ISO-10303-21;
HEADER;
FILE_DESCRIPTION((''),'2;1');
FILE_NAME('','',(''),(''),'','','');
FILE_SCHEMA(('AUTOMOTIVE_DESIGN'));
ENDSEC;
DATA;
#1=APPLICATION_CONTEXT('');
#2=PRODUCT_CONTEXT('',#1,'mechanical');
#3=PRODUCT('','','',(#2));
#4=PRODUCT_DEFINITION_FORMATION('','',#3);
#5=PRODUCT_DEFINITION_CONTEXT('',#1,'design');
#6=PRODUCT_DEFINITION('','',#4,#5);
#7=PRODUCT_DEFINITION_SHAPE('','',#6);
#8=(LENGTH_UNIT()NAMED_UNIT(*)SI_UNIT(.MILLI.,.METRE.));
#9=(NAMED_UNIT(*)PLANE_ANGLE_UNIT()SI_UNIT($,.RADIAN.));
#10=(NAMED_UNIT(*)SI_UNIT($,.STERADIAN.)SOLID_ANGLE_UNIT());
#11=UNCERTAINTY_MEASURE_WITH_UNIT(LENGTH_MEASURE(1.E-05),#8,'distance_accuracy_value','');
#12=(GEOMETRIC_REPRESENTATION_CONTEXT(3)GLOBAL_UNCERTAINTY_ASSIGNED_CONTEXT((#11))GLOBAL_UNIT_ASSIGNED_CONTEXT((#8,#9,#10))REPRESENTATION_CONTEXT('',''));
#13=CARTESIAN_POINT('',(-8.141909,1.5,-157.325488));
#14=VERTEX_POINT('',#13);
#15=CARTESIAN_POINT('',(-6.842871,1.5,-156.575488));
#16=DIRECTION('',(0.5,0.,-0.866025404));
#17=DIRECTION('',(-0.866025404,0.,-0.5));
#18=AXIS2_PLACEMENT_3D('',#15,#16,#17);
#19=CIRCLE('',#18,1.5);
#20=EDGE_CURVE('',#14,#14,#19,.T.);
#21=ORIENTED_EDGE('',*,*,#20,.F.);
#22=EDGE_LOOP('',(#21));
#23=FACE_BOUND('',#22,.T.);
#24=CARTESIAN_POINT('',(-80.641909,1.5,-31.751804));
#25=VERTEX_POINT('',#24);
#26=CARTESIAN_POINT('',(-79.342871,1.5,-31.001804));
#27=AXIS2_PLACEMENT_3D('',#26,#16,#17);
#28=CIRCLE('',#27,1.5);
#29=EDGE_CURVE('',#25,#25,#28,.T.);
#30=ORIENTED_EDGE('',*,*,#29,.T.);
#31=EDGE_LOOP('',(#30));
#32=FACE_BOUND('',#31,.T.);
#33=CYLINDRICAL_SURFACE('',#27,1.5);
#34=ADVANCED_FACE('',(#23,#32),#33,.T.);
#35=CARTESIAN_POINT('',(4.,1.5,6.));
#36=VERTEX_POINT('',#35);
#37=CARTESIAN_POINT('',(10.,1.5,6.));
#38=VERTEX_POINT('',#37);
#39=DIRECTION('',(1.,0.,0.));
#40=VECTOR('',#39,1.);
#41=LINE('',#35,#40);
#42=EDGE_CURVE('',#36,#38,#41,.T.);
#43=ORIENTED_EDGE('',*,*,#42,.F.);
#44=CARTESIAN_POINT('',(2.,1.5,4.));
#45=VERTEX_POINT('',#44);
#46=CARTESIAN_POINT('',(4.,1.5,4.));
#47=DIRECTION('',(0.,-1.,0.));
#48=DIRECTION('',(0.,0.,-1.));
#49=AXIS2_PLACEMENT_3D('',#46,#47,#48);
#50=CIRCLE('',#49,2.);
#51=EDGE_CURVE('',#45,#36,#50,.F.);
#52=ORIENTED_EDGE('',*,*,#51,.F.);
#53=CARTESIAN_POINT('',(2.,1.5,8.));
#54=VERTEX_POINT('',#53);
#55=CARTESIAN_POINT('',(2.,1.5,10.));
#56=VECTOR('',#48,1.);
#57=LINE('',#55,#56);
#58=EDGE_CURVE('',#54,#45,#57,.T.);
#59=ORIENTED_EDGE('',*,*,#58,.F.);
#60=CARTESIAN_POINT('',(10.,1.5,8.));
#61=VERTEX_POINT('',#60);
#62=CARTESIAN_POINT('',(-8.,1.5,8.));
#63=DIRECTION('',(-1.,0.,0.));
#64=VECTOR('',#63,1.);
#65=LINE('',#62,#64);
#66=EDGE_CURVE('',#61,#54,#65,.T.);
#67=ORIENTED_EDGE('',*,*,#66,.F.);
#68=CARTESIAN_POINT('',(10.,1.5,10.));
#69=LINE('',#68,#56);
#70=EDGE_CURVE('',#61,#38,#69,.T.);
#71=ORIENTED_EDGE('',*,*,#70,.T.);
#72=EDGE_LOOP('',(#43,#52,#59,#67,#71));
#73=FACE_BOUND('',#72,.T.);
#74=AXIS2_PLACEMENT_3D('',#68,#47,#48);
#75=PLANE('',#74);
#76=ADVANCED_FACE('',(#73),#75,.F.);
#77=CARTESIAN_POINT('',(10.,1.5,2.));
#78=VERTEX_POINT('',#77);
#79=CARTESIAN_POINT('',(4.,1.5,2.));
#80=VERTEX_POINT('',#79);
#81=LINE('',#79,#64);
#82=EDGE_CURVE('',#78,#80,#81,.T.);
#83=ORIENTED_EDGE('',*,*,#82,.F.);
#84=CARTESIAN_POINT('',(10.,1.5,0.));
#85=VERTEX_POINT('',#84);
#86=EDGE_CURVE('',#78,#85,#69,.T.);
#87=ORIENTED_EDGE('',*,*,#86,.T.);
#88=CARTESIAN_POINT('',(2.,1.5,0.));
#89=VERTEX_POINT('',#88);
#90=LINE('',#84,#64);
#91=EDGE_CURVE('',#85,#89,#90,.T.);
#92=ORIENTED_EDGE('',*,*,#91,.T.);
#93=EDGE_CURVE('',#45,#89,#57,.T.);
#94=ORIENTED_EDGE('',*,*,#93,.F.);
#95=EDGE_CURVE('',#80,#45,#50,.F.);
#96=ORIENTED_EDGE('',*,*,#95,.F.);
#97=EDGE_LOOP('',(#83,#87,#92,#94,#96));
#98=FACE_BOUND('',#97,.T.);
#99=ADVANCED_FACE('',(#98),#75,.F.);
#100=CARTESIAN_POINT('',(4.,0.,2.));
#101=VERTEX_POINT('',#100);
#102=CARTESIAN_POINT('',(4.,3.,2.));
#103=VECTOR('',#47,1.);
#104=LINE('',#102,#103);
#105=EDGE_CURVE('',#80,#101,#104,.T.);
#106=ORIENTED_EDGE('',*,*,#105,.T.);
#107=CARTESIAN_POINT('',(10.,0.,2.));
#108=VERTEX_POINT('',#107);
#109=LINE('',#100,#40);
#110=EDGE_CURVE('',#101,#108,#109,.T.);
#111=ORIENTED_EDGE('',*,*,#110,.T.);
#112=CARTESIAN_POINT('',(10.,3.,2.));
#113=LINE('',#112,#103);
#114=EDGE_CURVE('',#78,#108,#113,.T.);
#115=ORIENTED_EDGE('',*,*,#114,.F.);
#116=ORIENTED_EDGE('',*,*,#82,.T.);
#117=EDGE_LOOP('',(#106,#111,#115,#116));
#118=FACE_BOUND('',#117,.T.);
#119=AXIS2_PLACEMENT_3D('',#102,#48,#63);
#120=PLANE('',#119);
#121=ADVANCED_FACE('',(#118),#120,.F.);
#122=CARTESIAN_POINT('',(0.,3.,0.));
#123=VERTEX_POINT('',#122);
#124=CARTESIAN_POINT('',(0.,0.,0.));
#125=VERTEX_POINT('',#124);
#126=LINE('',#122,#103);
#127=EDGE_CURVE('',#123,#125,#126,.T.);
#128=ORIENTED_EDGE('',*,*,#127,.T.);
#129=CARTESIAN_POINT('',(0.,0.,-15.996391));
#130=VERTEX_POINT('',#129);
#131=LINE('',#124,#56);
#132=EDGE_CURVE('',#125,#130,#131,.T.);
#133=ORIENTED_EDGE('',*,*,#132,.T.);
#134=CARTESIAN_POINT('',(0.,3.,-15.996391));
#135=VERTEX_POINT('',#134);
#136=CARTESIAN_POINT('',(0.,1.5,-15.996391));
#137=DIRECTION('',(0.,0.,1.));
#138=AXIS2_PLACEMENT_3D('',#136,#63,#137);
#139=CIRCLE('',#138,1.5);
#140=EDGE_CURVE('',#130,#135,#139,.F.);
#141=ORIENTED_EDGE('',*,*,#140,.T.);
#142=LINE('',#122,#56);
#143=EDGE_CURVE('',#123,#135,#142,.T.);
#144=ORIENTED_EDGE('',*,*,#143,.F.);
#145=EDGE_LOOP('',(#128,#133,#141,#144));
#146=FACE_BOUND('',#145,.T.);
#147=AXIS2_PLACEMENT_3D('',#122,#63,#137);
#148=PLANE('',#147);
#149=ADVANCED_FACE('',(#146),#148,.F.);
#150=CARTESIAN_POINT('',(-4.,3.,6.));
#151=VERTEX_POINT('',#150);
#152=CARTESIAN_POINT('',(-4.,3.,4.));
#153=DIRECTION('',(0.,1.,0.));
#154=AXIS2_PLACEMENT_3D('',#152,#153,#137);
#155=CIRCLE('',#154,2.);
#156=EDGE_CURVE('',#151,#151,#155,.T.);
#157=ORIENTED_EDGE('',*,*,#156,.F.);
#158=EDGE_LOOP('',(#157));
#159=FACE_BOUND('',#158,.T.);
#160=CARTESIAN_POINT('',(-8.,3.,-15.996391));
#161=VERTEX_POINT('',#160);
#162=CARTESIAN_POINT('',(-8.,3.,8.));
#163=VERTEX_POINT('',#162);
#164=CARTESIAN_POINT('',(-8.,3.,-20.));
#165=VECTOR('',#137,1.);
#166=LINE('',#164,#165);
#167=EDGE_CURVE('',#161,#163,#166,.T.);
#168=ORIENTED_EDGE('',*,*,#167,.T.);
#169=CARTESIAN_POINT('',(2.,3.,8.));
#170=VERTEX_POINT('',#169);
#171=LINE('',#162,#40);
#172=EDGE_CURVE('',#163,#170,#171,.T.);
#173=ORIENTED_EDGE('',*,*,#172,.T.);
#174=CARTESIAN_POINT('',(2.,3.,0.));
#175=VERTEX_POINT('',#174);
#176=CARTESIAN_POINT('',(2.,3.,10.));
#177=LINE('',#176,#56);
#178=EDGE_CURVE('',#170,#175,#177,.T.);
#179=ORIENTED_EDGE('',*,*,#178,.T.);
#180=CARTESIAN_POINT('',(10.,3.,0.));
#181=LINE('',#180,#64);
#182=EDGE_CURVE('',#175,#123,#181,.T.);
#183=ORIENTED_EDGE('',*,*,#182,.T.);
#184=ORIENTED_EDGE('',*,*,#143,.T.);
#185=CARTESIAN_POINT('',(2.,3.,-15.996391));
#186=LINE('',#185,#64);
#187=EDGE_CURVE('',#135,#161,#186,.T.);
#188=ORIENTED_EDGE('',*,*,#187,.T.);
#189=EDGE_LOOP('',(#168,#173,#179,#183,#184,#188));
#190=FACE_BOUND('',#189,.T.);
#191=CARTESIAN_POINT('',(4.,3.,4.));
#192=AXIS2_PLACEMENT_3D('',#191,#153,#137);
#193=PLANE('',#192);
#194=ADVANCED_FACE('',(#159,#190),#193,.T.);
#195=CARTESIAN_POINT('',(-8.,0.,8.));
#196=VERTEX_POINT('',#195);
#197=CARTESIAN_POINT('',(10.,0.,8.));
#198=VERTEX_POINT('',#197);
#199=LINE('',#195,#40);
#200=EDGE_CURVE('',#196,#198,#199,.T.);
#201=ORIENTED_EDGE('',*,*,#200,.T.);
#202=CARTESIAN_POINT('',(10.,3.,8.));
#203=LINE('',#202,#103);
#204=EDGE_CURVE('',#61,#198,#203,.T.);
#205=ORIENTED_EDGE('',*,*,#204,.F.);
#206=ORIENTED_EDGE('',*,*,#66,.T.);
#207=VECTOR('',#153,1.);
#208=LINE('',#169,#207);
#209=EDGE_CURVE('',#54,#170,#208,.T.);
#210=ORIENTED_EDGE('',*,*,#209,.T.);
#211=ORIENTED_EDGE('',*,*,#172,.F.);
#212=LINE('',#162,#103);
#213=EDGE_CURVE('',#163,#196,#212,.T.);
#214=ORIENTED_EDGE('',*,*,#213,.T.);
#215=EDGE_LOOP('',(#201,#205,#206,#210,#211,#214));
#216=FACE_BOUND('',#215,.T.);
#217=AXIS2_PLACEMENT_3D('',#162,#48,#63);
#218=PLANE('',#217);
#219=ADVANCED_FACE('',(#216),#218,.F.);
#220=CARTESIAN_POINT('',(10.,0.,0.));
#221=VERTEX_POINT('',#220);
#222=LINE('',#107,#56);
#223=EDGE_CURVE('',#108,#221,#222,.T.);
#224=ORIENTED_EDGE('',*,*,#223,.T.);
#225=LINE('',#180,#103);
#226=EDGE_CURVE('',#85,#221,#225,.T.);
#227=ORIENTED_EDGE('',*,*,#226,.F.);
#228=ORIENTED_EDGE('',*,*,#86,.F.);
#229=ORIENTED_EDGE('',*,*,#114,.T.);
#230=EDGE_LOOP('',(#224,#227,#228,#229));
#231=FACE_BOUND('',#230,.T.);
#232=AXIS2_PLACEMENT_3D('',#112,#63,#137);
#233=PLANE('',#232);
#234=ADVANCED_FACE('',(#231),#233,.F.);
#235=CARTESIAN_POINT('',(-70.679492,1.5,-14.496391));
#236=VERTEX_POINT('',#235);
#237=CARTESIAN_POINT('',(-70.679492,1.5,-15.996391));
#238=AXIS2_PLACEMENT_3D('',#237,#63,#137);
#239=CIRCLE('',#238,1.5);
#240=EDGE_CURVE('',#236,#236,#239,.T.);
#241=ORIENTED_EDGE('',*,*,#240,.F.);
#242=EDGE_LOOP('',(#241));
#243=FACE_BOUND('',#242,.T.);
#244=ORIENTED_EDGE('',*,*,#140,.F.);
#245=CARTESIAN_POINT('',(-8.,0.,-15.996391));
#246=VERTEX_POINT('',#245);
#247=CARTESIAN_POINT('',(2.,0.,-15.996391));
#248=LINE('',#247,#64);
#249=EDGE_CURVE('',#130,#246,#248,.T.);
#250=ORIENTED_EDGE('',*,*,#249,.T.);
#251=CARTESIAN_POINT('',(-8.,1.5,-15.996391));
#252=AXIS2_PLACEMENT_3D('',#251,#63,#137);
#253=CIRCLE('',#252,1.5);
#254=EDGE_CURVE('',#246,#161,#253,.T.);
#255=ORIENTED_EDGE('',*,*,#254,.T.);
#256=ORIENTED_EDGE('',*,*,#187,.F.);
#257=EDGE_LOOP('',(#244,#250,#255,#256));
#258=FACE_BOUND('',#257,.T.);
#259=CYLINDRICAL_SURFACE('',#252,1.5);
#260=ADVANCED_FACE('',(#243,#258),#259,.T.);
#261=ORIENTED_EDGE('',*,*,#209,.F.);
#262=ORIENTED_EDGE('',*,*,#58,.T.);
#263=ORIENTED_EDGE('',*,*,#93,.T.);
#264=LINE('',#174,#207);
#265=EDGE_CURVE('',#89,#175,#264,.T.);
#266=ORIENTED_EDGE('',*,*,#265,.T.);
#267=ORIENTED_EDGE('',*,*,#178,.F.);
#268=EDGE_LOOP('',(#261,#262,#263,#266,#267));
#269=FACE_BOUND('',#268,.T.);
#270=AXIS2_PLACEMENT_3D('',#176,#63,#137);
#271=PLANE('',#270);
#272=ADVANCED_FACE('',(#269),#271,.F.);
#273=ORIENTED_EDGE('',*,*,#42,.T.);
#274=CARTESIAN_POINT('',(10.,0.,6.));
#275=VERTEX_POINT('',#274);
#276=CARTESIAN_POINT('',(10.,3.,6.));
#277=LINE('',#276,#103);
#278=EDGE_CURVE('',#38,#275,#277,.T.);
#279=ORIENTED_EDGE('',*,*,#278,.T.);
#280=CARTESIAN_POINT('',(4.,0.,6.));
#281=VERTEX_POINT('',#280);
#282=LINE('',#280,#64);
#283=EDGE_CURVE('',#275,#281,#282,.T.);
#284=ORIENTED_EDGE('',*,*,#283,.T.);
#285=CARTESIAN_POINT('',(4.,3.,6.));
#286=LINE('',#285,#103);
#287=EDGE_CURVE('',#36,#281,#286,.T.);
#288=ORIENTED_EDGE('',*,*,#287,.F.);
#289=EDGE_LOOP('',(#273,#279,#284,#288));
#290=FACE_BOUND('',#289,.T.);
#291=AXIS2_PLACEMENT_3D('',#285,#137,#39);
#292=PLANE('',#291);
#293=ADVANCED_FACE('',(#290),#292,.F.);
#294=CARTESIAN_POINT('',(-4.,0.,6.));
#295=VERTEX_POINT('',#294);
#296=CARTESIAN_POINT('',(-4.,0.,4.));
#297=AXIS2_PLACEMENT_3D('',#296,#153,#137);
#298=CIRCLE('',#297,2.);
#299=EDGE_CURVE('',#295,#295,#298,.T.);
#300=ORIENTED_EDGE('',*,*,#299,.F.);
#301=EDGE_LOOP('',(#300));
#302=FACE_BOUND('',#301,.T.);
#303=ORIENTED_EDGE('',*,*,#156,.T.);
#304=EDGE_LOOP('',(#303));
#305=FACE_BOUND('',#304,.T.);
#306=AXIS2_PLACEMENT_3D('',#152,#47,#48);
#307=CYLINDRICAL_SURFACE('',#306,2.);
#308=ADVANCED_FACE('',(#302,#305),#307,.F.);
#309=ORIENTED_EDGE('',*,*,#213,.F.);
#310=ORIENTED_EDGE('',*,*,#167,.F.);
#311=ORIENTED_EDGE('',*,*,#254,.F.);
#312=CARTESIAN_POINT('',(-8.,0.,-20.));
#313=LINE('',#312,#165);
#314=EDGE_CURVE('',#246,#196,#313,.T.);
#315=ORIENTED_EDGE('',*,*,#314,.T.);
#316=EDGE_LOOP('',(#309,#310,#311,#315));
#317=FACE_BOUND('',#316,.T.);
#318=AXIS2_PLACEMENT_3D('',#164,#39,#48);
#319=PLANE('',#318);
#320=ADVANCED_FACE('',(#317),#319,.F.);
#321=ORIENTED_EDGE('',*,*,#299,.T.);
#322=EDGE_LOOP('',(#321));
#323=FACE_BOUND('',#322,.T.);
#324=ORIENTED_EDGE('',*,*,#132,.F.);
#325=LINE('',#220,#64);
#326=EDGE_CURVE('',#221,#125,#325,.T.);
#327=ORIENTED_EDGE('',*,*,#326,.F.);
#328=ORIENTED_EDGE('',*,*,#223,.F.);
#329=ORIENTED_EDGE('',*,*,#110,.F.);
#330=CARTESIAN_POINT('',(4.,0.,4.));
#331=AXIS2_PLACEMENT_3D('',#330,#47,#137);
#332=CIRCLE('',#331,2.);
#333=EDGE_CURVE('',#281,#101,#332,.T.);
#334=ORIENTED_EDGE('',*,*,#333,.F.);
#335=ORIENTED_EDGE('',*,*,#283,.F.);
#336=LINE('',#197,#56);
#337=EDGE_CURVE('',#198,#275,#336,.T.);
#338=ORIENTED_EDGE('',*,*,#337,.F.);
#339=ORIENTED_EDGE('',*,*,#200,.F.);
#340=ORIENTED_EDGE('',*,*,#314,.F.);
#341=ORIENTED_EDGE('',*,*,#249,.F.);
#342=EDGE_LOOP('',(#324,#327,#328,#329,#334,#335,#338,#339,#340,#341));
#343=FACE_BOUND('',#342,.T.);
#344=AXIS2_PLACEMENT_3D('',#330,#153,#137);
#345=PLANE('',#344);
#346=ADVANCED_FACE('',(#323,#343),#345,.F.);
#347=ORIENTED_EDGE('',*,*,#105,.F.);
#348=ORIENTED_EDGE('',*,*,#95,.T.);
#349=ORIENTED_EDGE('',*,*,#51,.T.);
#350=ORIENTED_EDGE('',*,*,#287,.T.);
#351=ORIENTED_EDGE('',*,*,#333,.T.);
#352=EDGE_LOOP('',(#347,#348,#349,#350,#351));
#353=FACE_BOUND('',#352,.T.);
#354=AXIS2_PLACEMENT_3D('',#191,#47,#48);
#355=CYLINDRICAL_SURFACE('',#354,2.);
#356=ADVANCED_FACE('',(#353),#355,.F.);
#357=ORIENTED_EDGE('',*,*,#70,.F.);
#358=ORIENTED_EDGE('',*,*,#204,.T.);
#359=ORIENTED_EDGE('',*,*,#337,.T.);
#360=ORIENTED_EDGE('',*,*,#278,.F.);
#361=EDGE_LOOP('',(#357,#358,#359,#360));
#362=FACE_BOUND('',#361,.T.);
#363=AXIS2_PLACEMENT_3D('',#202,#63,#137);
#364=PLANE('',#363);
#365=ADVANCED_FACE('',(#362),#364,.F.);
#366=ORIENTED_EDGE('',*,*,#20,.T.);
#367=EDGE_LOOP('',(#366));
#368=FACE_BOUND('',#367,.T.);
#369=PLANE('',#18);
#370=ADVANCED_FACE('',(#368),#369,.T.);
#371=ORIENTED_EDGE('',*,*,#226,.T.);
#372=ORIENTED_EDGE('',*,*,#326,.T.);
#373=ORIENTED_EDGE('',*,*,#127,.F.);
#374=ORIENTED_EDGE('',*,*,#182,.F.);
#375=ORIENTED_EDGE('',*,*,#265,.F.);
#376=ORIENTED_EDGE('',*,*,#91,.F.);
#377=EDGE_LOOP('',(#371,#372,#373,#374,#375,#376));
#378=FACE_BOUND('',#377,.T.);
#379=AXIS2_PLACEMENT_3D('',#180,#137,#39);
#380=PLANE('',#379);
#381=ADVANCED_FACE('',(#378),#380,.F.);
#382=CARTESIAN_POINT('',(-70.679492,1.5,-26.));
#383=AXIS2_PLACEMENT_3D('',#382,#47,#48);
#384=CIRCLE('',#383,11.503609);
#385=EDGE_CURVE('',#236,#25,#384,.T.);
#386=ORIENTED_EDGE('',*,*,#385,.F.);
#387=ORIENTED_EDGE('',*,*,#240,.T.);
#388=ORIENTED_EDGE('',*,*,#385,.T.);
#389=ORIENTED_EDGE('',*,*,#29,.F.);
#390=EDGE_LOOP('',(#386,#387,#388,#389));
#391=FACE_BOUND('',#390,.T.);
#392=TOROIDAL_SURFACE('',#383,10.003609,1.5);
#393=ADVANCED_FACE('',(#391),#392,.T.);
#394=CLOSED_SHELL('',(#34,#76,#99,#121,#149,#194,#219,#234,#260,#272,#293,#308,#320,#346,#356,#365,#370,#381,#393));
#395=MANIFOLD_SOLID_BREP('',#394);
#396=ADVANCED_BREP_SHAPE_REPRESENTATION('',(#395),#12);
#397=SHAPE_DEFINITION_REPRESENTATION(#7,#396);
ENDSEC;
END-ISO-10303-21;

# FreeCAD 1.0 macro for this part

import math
import FreeCAD as App
import Part
import Sketcher

V = App.Vector
Q = App.Units.Quantity

doc = App.newDocument("Part")
body = doc.addObject("PartDesign::Body", "Body")

# Sketch on XZ plane
sketch1 = body.newObject("Sketcher::SketchObject", "Sketch")
sketch1.AttachmentSupport = (doc.getObject("XZ_Plane"), [""])
sketch1.MapMode = "FlatFace"
sketch1.addGeometry([
    Part.LineSegment(V(0, 0, 0), V(0, -20, 0)),  # 0
    Part.LineSegment(V(0, -20, 0), V(-8, -20, 0)),  # 1
    Part.LineSegment(V(-8, -20, 0), V(-8, 8, 0)),  # 2
    Part.LineSegment(V(-8, 8, 0), V(10, 8, 0)),  # 3
    Part.LineSegment(V(10, 8, 0), V(10, 6, 0)),  # 4
    Part.LineSegment(V(10, 6, 0), V(4, 6, 0)),  # 5
    Part.ArcOfCircle(Part.Circle(V(4, 4, 0), V(0, 0, 1), 2), math.radians(90), math.radians(270)),  # 6
    Part.LineSegment(V(4, 2, 0), V(10, 2, 0)),  # 7
    Part.LineSegment(V(10, 2, 0), V(10, 0, 0)),  # 8
    Part.LineSegment(V(10, 0, 0), V(0, 0, 0)),  # 9
    Part.Circle(V(-4, 4, 0), V(0, 0, 1), 2),  # 10
], False)
sketch1.addConstraint([
    Sketcher.Constraint("Coincident", 0, 2, 1, 1),
    Sketcher.Constraint("Coincident", 1, 2, 2, 1),
    Sketcher.Constraint("Coincident", 2, 2, 3, 1),
    Sketcher.Constraint("Coincident", 3, 2, 4, 1),
    Sketcher.Constraint("Coincident", 4, 2, 5, 1),
    Sketcher.Constraint("Tangent", 5, 2, 6, 1),
    Sketcher.Constraint("Tangent", 6, 2, 7, 1),
    Sketcher.Constraint("Coincident", 7, 2, 8, 1),
    Sketcher.Constraint("Coincident", 8, 2, 9, 1),
    Sketcher.Constraint("Coincident", 9, 2, 0, 1),
    Sketcher.Constraint("Vertical", 0),
    Sketcher.Constraint("Horizontal", 1),
    Sketcher.Constraint("Vertical", 2),
    Sketcher.Constraint("Horizontal", 3),
    Sketcher.Constraint("Vertical", 4),
    Sketcher.Constraint("Horizontal", 5),
    Sketcher.Constraint("Horizontal", 7),
    Sketcher.Constraint("Vertical", 8),
    Sketcher.Constraint("Horizontal", 9),
    Sketcher.Constraint("Coincident", 9, 2, -1, 1),
    Sketcher.Constraint("Equal", 6, 10),
    Sketcher.Constraint("Symmetric", 6, 3, 10, 3, -2),
    Sketcher.Constraint("Vertical", 4, 2, 7, 2),
    Sketcher.Constraint("Equal", 4, 8),
    Sketcher.Constraint("Diameter", 10, Q("4 mm")),
    Sketcher.Constraint("DistanceX", 1, 2, 1, 1, Q("8 mm")),
    Sketcher.Constraint("DistanceX", 3, 1, 3, 2, Q("18 mm")),
    Sketcher.Constraint("DistanceX", 5, 2, 5, 1, Q("6 mm")),
    Sketcher.Constraint("DistanceY", 0, 2, 0, 1, Q("20 mm")),
    Sketcher.Constraint("DistanceY", 2, 1, 2, 2, Q("28 mm")),
])
pad1 = body.newObject("PartDesign::Pad", "Pad")
pad1.Profile = sketch1
pad1.Length = 3
pad1.Reversed = True

# Sketch on YZ plane
sketch2 = body.newObject("Sketcher::SketchObject", "Sketch001")
sketch2.AttachmentSupport = (doc.getObject("YZ_Plane"), [""])
sketch2.MapMode = "FlatFace"
sketch2.AttachmentOffset = App.Placement(V(0, 0, -8), App.Rotation())
sketch2.addGeometry(Part.Circle(V(1.5, -16, 0), V(0, 0, 1), 1.5), False)
sketch2.addConstraint([
    Sketcher.Constraint("Diameter", 0, Q("3 mm")),
    Sketcher.Constraint("DistanceX", -1, 1, 0, 3, Q("1.5 mm")),
    Sketcher.Constraint("DistanceY", 0, 3, -1, 1, Q("15.996391 mm")),
])

# Sketch on XZ plane
sketch3 = body.newObject("Sketcher::SketchObject", "Sketch002")
sketch3.AttachmentSupport = (doc.getObject("XZ_Plane"), [""])
sketch3.MapMode = "FlatFace"
sketch3.AttachmentOffset = App.Placement(V(0, 0, -1.5), App.Rotation())
sketch3.addGeometry([
    Part.LineSegment(V(-8, -16, 0), V(-71, -16, 0)),
    Part.ArcOfCircle(Part.Circle(V(-71, -26, 0), V(0, 0, 1), 10), math.radians(90), math.radians(210)),
    Part.LineSegment(V(-79, -31, 0), V(-7, -157, 0)),
], False)
sketch3.addConstraint([
    Sketcher.Constraint("Tangent", 0, 2, 1, 1),
    Sketcher.Constraint("Tangent", 1, 2, 2, 1),
    Sketcher.Constraint("Horizontal", 0),
    Sketcher.Constraint("Radius", 1, Q("10 mm")),
    Sketcher.Constraint("Angle", 2, Q("-60 deg")),
    Sketcher.Constraint("Distance", 2, Q("145 mm")),
    Sketcher.Constraint("DistanceY", 1, 3, -1, 1, Q("26 mm")),
    Sketcher.Constraint("DistanceX", 0, 1, -1, 1, Q("8 mm")),
    Sketcher.Constraint("DistanceX", 0, 2, 0, 1, Q("62.679492 mm")),
])
doc.recompute()

additivepipe = body.newObject("PartDesign::AdditivePipe", "AdditivePipe")
additivepipe.Profile = sketch2
additivepipe.Spine = (sketch3, ["Edge1", "Edge2", "Edge3"])

# Sketch on XY plane
sketch4 = body.newObject("Sketcher::SketchObject", "Sketch003")
sketch4.AttachmentSupport = (doc.getObject("XY_Plane"), [""])
sketch4.MapMode = "FlatFace"
sketch4.addGeometry([
    Part.LineSegment(V(10, 3, 0), V(10, 1.5, 0)),
    Part.LineSegment(V(10, 1.5, 0), V(2, 1.5, 0)),
    Part.LineSegment(V(2, 1.5, 0), V(2, 3, 0)),
    Part.LineSegment(V(2, 3, 0), V(10, 3, 0)),
], False)
sketch4.addConstraint([
    Sketcher.Constraint("Coincident", 0, 2, 1, 1),
    Sketcher.Constraint("Coincident", 1, 2, 2, 1),
    Sketcher.Constraint("Coincident", 2, 2, 3, 1),
    Sketcher.Constraint("Coincident", 3, 2, 0, 1),
    Sketcher.Constraint("Vertical", 0),
    Sketcher.Constraint("Horizontal", 1),
    Sketcher.Constraint("Vertical", 2),
    Sketcher.Constraint("Horizontal", 3),
    Sketcher.Constraint("DistanceX", 1, 2, 1, 1, Q("8 mm")),
    Sketcher.Constraint("DistanceY", 0, 2, 0, 1, Q("1.5 mm")),
    Sketcher.Constraint("DistanceX", -1, 1, 0, 2, Q("10 mm")),
    Sketcher.Constraint("DistanceY", -1, 1, 2, 2, Q("3 mm")),
])
pocket1 = body.newObject("PartDesign::Pocket", "Pocket")
pocket1.Profile = sketch4
pocket1.Length = 10
pocket1.Reversed = True

# Sketch on YZ plane
sketch5 = body.newObject("Sketcher::SketchObject", "Sketch004")
sketch5.AttachmentSupport = (doc.getObject("YZ_Plane"), [""])
sketch5.MapMode = "FlatFace"
sketch5.AttachmentOffset = App.Placement(V(0, 0, -8), App.Rotation())
sketch5.addGeometry([
    Part.LineSegment(V(3, -16, 0), V(3, -20, 0)),
    Part.LineSegment(V(3, -20, 0), V(0, -20, 0)),
    Part.LineSegment(V(0, -20, 0), V(0, -16, 0)),
    Part.ArcOfCircle(Part.Circle(V(1.5, -16, 0), V(0, 0, 1), 1.5), math.radians(180), math.radians(360)),
], False)
sketch5.addConstraint([
    Sketcher.Constraint("Coincident", 0, 2, 1, 1),
    Sketcher.Constraint("Coincident", 1, 2, 2, 1),
    Sketcher.Constraint("Tangent", 2, 2, 3, 1),
    Sketcher.Constraint("Tangent", 3, 2, 0, 1),
    Sketcher.Constraint("Vertical", 0),
    Sketcher.Constraint("Horizontal", 1),
    Sketcher.Constraint("Vertical", 2),
    Sketcher.Constraint("PointOnObject", 1, 2, -2),
    Sketcher.Constraint("Radius", 3, Q("1.5 mm")),
    Sketcher.Constraint("DistanceY", 0, 2, -1, 1, Q("20 mm")),
    Sketcher.Constraint("DistanceY", 0, 2, 0, 1, Q("4.003609 mm")),
])
pocket2 = body.newObject("PartDesign::Pocket", "Pocket001")
pocket2.Profile = sketch5
pocket2.Length = 10
pocket2.Reversed = True

doc.recompute()
